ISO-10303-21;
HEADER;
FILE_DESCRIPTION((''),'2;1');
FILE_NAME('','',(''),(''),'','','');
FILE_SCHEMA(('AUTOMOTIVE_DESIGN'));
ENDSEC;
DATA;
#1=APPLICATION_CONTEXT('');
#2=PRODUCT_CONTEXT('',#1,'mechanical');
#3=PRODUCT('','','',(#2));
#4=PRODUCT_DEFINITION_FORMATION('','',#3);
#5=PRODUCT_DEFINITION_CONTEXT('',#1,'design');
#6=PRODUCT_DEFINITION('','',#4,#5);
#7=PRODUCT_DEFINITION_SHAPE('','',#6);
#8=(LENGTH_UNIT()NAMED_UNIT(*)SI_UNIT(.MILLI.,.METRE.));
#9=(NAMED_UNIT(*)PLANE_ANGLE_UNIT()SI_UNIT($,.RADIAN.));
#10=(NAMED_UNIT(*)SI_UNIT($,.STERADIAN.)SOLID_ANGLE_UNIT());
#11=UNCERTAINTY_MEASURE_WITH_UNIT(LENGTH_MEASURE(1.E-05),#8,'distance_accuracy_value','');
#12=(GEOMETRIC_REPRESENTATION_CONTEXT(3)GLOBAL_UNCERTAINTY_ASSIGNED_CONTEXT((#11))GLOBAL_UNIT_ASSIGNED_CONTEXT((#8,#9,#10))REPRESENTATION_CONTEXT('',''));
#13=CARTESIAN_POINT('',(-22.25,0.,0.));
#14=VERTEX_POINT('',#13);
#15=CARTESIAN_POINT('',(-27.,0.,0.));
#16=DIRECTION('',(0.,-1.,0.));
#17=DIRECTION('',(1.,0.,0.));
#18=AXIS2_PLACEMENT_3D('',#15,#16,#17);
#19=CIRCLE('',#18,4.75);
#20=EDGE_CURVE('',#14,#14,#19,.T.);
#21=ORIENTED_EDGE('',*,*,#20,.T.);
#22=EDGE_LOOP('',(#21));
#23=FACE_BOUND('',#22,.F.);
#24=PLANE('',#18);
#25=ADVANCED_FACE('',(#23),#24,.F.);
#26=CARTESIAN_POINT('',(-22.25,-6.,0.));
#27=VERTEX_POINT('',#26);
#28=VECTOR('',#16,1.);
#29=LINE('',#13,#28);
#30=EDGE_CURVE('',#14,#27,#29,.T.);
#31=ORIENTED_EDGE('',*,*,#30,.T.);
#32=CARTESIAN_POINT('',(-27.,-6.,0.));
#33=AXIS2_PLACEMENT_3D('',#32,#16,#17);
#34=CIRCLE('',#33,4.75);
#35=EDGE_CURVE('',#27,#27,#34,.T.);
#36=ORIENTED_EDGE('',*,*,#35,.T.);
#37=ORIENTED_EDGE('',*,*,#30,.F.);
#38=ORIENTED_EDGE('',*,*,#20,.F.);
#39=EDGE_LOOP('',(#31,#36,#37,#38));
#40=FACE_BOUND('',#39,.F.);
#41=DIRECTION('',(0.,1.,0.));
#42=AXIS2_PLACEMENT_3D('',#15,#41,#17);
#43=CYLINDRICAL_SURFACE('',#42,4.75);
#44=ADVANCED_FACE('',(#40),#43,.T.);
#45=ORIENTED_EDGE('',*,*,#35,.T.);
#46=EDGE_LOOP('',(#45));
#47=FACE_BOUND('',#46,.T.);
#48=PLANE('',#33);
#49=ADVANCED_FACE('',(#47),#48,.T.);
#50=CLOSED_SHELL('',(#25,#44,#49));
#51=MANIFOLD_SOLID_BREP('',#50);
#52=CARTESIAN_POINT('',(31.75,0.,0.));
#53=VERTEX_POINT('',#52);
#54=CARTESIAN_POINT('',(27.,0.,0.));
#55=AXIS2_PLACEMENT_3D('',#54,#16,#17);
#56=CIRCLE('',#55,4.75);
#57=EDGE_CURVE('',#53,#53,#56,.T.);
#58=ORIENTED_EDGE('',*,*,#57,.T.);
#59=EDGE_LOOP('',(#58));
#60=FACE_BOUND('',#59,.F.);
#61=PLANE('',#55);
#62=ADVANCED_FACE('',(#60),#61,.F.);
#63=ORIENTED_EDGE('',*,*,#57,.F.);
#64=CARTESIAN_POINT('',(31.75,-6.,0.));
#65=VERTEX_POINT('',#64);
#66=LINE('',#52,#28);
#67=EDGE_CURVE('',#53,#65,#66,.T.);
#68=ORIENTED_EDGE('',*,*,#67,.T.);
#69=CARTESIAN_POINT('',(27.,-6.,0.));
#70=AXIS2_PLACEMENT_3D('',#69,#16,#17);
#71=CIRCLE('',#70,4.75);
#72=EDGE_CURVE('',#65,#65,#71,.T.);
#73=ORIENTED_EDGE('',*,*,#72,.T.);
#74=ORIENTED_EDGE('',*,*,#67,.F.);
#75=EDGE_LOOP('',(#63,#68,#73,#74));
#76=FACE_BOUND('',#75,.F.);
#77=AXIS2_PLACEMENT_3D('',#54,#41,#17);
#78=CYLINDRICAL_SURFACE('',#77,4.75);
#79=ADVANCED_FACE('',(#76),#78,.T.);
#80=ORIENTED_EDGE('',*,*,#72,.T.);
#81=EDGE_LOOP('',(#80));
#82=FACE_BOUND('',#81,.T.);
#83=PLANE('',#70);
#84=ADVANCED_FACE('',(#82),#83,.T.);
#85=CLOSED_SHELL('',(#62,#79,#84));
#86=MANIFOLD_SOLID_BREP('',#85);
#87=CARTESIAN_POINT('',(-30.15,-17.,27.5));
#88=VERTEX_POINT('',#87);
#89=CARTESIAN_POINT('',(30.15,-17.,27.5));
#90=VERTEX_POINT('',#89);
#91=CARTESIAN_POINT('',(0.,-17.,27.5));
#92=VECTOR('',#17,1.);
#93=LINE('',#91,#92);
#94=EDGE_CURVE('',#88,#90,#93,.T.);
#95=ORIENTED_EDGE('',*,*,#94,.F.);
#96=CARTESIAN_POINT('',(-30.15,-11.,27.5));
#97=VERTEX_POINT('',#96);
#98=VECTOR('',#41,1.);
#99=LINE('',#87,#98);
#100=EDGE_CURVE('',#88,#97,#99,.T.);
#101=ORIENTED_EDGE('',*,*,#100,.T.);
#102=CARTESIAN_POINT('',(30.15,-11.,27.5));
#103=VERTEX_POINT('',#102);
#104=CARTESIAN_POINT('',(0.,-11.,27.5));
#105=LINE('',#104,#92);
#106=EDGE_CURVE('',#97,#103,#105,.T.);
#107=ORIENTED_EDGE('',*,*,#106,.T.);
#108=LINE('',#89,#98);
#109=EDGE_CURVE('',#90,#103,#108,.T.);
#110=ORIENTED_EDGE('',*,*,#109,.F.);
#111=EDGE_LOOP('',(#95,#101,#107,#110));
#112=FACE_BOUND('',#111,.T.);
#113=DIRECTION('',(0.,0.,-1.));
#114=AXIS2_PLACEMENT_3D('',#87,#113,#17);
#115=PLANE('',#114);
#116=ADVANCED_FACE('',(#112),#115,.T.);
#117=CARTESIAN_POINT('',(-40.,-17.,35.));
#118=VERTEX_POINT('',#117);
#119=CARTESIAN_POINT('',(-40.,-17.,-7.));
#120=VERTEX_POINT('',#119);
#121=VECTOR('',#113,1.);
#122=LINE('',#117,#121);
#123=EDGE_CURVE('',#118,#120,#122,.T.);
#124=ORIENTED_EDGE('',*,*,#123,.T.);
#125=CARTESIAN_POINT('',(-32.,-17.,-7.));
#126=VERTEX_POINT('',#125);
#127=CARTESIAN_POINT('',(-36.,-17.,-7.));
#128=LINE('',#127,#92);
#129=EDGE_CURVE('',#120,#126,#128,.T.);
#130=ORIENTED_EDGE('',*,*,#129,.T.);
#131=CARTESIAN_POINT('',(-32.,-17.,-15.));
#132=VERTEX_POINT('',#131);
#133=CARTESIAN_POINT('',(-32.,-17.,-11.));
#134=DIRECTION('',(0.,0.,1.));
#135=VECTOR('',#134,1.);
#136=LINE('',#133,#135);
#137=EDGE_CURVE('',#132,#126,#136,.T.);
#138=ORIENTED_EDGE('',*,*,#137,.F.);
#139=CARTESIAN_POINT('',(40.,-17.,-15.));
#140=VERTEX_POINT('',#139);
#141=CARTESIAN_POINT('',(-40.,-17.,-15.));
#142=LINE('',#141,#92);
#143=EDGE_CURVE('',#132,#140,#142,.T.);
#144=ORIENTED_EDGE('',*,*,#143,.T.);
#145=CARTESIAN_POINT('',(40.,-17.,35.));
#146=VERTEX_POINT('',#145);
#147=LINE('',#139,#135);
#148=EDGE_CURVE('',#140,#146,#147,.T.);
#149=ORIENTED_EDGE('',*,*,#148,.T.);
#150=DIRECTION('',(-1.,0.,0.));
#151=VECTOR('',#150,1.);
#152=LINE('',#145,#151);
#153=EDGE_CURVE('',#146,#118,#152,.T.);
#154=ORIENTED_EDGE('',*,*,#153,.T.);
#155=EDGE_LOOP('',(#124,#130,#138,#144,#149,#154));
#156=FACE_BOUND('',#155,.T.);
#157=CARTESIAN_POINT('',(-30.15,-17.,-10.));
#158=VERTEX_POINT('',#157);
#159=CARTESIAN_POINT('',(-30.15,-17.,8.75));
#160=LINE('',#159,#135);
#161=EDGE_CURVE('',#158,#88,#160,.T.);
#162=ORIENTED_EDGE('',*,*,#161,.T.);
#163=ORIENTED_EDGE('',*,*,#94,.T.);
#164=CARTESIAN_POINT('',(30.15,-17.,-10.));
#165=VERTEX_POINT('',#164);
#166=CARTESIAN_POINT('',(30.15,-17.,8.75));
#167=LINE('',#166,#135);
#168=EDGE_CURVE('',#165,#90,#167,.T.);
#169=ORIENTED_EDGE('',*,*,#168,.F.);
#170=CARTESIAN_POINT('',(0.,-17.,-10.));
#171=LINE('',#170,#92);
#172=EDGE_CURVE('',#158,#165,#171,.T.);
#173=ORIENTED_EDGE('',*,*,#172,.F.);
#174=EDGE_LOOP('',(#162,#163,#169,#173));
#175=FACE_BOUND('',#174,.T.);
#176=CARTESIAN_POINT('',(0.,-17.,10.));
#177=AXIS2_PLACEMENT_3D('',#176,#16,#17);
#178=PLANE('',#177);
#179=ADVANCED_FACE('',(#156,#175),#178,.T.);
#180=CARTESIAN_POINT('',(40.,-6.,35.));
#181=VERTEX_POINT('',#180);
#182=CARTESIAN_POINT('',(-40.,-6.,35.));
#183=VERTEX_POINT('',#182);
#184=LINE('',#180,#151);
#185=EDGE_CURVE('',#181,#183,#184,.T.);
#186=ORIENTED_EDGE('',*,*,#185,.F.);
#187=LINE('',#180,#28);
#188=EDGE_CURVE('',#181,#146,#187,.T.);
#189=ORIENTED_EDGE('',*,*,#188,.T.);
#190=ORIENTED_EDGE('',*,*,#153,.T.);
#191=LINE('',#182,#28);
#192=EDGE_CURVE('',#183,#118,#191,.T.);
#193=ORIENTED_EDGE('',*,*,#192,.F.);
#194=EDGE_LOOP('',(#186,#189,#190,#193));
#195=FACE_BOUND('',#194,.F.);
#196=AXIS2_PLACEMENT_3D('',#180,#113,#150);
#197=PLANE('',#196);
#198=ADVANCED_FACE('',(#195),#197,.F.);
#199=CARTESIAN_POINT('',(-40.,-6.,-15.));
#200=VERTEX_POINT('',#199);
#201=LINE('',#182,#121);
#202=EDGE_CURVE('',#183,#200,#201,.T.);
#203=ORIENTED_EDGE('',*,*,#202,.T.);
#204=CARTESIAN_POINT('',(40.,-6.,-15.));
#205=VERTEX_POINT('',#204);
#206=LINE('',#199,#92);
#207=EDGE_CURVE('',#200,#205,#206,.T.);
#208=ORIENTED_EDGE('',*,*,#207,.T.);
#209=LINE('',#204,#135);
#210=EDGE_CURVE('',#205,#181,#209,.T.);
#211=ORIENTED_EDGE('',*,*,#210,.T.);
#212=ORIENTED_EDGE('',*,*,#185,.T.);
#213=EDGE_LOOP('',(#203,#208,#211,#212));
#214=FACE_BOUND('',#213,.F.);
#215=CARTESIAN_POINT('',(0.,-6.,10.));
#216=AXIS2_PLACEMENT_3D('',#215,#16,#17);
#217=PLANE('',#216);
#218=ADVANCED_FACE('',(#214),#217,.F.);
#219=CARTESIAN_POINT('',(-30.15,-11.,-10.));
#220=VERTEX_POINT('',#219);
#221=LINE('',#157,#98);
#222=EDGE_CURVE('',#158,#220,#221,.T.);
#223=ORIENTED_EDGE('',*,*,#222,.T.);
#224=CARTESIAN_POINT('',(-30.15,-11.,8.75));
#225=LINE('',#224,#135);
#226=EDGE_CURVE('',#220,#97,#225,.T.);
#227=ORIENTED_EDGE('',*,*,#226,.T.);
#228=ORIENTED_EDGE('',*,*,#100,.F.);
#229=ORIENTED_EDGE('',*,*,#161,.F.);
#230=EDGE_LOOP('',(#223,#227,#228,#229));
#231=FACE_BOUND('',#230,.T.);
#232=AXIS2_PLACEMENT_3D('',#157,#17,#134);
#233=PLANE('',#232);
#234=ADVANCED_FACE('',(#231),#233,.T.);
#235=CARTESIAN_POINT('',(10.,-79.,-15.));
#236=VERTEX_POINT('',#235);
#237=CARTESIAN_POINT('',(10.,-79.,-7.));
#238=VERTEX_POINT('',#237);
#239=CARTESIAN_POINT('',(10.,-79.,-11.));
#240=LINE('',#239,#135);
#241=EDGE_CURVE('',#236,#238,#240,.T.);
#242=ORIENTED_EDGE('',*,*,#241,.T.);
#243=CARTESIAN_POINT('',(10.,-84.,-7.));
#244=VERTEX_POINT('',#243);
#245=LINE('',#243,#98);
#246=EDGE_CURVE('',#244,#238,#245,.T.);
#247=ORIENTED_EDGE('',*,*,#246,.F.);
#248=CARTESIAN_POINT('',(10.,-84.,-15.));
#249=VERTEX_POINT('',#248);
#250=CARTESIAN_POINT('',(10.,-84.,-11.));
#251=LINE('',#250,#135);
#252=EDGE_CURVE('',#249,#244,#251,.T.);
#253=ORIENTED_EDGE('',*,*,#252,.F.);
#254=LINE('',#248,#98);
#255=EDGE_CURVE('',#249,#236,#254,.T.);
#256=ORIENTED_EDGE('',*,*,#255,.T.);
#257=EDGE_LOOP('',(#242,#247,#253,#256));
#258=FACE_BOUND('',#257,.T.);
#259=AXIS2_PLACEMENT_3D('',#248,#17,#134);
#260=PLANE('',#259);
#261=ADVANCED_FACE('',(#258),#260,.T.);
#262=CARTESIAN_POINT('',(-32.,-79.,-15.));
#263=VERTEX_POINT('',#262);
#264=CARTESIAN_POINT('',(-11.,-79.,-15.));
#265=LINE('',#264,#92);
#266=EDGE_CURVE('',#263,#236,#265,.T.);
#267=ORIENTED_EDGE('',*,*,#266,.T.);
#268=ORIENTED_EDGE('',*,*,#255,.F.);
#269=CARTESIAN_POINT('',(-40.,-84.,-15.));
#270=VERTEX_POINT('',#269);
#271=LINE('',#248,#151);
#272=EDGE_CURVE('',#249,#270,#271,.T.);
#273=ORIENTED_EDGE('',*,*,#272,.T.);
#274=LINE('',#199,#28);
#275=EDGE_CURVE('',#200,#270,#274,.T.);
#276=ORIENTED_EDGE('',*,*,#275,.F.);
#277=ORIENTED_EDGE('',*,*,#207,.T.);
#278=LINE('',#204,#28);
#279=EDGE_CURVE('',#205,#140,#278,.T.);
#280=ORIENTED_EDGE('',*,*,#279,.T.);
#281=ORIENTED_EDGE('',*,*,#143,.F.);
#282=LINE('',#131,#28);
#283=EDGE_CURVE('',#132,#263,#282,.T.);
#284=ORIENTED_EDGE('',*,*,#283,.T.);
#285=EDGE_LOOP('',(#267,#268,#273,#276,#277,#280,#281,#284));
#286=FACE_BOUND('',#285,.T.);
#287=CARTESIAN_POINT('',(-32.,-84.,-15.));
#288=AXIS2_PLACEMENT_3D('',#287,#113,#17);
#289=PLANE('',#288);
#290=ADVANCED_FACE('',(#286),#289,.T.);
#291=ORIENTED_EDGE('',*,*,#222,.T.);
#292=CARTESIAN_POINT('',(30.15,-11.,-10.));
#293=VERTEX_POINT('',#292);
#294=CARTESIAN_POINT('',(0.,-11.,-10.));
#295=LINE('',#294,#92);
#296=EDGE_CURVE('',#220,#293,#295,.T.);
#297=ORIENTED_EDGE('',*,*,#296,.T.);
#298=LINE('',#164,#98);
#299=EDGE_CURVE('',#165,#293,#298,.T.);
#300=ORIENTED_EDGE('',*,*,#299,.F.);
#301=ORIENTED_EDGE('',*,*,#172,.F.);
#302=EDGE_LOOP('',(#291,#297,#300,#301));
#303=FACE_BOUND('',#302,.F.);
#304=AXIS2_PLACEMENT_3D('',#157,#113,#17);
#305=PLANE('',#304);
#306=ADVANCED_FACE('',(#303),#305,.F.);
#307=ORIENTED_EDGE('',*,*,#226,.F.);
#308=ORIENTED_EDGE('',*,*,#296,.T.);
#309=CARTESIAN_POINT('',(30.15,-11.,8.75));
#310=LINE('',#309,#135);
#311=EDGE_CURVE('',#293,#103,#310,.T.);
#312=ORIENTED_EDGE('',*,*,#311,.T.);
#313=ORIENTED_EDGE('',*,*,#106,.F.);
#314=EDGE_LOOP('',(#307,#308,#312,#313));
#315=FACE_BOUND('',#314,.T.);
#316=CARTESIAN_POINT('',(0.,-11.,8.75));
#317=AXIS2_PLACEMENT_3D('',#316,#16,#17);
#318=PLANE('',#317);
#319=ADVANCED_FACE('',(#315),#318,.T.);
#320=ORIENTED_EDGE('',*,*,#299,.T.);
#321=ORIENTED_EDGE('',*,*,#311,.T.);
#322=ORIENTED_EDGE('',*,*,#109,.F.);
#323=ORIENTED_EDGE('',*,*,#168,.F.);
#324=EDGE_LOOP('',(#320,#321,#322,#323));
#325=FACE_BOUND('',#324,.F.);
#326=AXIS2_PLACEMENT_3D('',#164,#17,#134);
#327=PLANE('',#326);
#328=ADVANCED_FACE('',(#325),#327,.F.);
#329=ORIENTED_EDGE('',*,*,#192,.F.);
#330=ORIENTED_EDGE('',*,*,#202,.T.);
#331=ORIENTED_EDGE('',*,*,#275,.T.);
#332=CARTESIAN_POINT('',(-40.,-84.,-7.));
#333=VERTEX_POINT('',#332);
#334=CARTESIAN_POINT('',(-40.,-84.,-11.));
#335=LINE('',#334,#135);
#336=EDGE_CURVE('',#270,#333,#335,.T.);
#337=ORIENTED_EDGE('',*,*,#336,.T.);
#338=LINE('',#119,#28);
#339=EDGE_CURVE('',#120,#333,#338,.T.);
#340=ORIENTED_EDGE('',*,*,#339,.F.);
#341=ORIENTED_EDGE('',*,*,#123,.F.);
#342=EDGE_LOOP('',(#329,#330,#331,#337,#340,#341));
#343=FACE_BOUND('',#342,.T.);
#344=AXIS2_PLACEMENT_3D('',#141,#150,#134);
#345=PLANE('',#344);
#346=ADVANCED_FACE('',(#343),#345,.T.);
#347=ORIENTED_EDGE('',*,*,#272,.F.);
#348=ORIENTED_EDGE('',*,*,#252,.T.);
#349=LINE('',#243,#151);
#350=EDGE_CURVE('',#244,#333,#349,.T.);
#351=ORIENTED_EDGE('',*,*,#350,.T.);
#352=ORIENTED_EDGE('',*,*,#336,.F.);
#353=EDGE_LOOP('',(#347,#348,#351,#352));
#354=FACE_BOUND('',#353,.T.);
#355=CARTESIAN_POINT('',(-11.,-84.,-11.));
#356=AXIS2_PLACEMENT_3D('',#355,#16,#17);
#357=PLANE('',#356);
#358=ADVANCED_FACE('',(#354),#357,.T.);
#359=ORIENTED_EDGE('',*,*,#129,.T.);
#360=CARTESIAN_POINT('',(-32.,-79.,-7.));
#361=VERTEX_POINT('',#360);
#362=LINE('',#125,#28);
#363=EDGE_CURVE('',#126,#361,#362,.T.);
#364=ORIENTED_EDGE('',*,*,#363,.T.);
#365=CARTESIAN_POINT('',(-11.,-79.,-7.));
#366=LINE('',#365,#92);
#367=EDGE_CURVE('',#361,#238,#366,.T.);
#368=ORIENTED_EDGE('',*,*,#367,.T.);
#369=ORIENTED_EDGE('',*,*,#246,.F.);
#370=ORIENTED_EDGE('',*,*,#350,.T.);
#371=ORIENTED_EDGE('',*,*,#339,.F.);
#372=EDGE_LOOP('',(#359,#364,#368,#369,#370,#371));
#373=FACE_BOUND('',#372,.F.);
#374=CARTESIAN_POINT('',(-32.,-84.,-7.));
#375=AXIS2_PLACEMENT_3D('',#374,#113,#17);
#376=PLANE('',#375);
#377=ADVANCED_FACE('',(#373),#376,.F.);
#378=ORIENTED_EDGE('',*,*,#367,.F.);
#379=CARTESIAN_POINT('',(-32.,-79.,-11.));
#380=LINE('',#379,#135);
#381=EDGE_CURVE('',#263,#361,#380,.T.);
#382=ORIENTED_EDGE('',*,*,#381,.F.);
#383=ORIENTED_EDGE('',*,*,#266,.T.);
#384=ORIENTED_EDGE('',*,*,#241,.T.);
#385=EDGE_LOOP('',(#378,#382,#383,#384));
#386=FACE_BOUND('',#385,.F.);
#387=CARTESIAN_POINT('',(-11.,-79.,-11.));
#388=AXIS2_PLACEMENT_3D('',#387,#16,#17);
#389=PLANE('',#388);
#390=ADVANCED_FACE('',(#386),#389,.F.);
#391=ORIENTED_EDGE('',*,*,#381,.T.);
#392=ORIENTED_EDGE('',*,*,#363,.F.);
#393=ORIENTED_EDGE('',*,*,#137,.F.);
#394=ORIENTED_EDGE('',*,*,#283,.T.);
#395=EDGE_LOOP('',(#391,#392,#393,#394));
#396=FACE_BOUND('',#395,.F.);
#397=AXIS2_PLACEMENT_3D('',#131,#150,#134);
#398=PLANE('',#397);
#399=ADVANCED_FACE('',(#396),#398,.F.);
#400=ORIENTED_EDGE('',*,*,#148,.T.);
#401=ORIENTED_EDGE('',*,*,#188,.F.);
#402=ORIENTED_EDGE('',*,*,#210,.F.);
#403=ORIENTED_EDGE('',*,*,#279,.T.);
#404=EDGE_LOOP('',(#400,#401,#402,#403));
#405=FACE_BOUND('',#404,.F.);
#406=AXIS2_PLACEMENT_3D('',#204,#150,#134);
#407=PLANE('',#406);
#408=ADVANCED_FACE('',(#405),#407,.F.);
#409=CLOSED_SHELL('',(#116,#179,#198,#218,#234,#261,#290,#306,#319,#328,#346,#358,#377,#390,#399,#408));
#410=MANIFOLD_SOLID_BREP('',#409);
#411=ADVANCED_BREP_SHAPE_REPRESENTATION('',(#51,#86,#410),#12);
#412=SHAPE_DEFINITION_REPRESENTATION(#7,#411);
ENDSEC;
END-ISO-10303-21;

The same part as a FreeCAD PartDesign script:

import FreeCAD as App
import Part
import Sketcher
Q = App.Units.Quantity


def add_polygon(sketch, points):
    """Adds a closed chain of lines whose ends are joined by coincident constraints."""
    first, n = sketch.GeometryCount, len(points)
    for a, b in zip(points, points[1:] + points[:1]):
        sketch.addGeometry(Part.LineSegment(App.Vector(*a, 0), App.Vector(*b, 0)), False)
    for i in range(n):
        sketch.addConstraint(Sketcher.Constraint("Coincident", first + i, 2, first + (i + 1) % n, 1))

doc = App.newDocument("Part")
body = doc.addObject("PartDesign::Body", "Body")

sketch1 = doc.addObject("Sketcher::SketchObject", "Sketch")
body.addObject(sketch1)
sketch1.AttachmentSupport = (doc.XZ_Plane, [""])
sketch1.MapMode = "FlatFace"
sketch1.addGeometry(Part.Circle(App.Vector(-27, 0, 0), App.Vector(0, 0, 1), 4.8), False)
sketch1.addConstraint(Sketcher.Constraint("PointOnObject", 0, 3, -1))
sketch1.addConstraint(Sketcher.Constraint("Diameter", 0, Q("9.5 mm")))
sketch1.addConstraint(Sketcher.Constraint("DistanceX", 0, 3, -1, 1, Q("27 mm")))
pad1 = doc.addObject("PartDesign::Pad", "Pad")
body.addObject(pad1)
pad1.Profile = sketch1
pad1.Length = 6
body2 = doc.addObject("PartDesign::Body", "Body001")

sketch2 = doc.addObject("Sketcher::SketchObject", "Sketch001")
body2.addObject(sketch2)
sketch2.AttachmentSupport = (doc.getObject("XZ_Plane001"), [""])
sketch2.MapMode = "FlatFace"
sketch2.addGeometry(Part.Circle(App.Vector(27, 0, 0), App.Vector(0, 0, 1), 4.8), False)
sketch2.addConstraint(Sketcher.Constraint("PointOnObject", 0, 3, -1))
sketch2.addConstraint(Sketcher.Constraint("Diameter", 0, Q("9.5 mm")))
sketch2.addConstraint(Sketcher.Constraint("DistanceX", -1, 1, 0, 3, Q("27 mm")))
pad2 = doc.addObject("PartDesign::Pad", "Pad001")
body2.addObject(pad2)
pad2.Profile = sketch2
pad2.Length = 6
body3 = doc.addObject("PartDesign::Body", "Body002")

sketch3 = doc.addObject("Sketcher::SketchObject", "Sketch002")
body3.addObject(sketch3)
sketch3.AttachmentSupport = (doc.getObject("XZ_Plane002"), [""])
sketch3.MapMode = "FlatFace"
sketch3.AttachmentOffset = App.Placement(App.Vector(0, 0, 6), App.Rotation())
add_polygon(sketch3, [(-40, -15), (40, -15), (40, 35), (-40, 35)])
sketch3.addConstraint(Sketcher.Constraint("Horizontal", 0))
sketch3.addConstraint(Sketcher.Constraint("Vertical", 1))
sketch3.addConstraint(Sketcher.Constraint("Horizontal", 2))
sketch3.addConstraint(Sketcher.Constraint("Vertical", 3))
sketch3.addConstraint(Sketcher.Constraint("DistanceX", 0, 1, 0, 2, Q("80 mm")))
sketch3.addConstraint(Sketcher.Constraint("DistanceY", 1, 1, 1, 2, Q("50 mm")))
sketch3.addConstraint(Sketcher.Constraint("DistanceX", -1, 1, 0, 2, Q("40 mm")))
sketch3.addConstraint(Sketcher.Constraint("DistanceY", 0, 2, -1, 1, Q("15 mm")))
pad3 = doc.addObject("PartDesign::Pad", "Pad002")
body3.addObject(pad3)
pad3.Profile = sketch3
pad3.Length = 11

sketch4 = doc.addObject("Sketcher::SketchObject", "Sketch003")
body3.addObject(sketch4)
sketch4.AttachmentSupport = (doc.getObject("XZ_Plane002"), [""])
sketch4.MapMode = "FlatFace"
sketch4.AttachmentOffset = App.Placement(App.Vector(0, 0, 17), App.Rotation())
add_polygon(sketch4, [(-30, 28), (-30, -10), (30, -10), (30, 28)])
sketch4.addConstraint(Sketcher.Constraint("Vertical", 0))
sketch4.addConstraint(Sketcher.Constraint("Horizontal", 1))
sketch4.addConstraint(Sketcher.Constraint("Vertical", 2))
sketch4.addConstraint(Sketcher.Constraint("Horizontal", 3))
sketch4.addConstraint(Sketcher.Constraint("DistanceX", 1, 1, 1, 2, Q("60.3 mm")))
sketch4.addConstraint(Sketcher.Constraint("DistanceY", 0, 2, 0, 1, Q("37.5 mm")))
sketch4.addConstraint(Sketcher.Constraint("DistanceY", 0, 2, -1, 1, Q("10 mm")))
sketch4.addConstraint(Sketcher.Constraint("DistanceX", 0, 2, -1, 1, Q("30.15 mm")))
pocket1 = doc.addObject("PartDesign::Pocket", "Pocket")
body3.addObject(pocket1)
pocket1.Profile = sketch4
pocket1.Length = 6

sketch5 = doc.addObject("Sketcher::SketchObject", "Sketch004")
body3.addObject(sketch5)
sketch5.AttachmentSupport = (doc.getObject("XZ_Plane002"), [""])
sketch5.MapMode = "FlatFace"
sketch5.AttachmentOffset = App.Placement(App.Vector(0, 0, 17), App.Rotation())
add_polygon(sketch5, [(-40, -7), (-40, -15), (-32, -15), (-32, -7)])
sketch5.addConstraint(Sketcher.Constraint("Vertical", 0))
sketch5.addConstraint(Sketcher.Constraint("Horizontal", 1))
sketch5.addConstraint(Sketcher.Constraint("Vertical", 2))
sketch5.addConstraint(Sketcher.Constraint("Horizontal", 3))
sketch5.addConstraint(Sketcher.Constraint("Equal", 3, 0))
sketch5.addConstraint(Sketcher.Constraint("DistanceX", 1, 1, 1, 2, Q("8 mm")))
sketch5.addConstraint(Sketcher.Constraint("DistanceX", 0, 2, -1, 1, Q("40 mm")))
sketch5.addConstraint(Sketcher.Constraint("DistanceY", 0, 2, -1, 1, Q("15 mm")))
pad4 = doc.addObject("PartDesign::Pad", "Pad003")
body3.addObject(pad4)
pad4.Profile = sketch5
pad4.Length = 67

sketch6 = doc.addObject("Sketcher::SketchObject", "Sketch005")
body3.addObject(sketch6)
sketch6.AttachmentSupport = (doc.getObject("XZ_Plane002"), [""])
sketch6.MapMode = "FlatFace"
sketch6.AttachmentOffset = App.Placement(App.Vector(0, 0, 84), App.Rotation())
add_polygon(sketch6, [(-32, -7), (-32, -15), (10, -15), (10, -7)])
sketch6.addConstraint(Sketcher.Constraint("Vertical", 0))
sketch6.addConstraint(Sketcher.Constraint("Horizontal", 1))
sketch6.addConstraint(Sketcher.Constraint("Vertical", 2))
sketch6.addConstraint(Sketcher.Constraint("Horizontal", 3))
sketch6.addConstraint(Sketcher.Constraint("DistanceX", 1, 1, 1, 2, Q("42 mm")))
sketch6.addConstraint(Sketcher.Constraint("DistanceY", 0, 2, 0, 1, Q("8 mm")))
sketch6.addConstraint(Sketcher.Constraint("DistanceX", 0, 2, -1, 1, Q("32 mm")))
sketch6.addConstraint(Sketcher.Constraint("DistanceY", 0, 2, -1, 1, Q("15 mm")))
pad5 = doc.addObject("PartDesign::Pad", "Pad004")
body3.addObject(pad5)
pad5.Profile = sketch6
pad5.Length = 5
pad5.Reversed = True

doc.recompute()
